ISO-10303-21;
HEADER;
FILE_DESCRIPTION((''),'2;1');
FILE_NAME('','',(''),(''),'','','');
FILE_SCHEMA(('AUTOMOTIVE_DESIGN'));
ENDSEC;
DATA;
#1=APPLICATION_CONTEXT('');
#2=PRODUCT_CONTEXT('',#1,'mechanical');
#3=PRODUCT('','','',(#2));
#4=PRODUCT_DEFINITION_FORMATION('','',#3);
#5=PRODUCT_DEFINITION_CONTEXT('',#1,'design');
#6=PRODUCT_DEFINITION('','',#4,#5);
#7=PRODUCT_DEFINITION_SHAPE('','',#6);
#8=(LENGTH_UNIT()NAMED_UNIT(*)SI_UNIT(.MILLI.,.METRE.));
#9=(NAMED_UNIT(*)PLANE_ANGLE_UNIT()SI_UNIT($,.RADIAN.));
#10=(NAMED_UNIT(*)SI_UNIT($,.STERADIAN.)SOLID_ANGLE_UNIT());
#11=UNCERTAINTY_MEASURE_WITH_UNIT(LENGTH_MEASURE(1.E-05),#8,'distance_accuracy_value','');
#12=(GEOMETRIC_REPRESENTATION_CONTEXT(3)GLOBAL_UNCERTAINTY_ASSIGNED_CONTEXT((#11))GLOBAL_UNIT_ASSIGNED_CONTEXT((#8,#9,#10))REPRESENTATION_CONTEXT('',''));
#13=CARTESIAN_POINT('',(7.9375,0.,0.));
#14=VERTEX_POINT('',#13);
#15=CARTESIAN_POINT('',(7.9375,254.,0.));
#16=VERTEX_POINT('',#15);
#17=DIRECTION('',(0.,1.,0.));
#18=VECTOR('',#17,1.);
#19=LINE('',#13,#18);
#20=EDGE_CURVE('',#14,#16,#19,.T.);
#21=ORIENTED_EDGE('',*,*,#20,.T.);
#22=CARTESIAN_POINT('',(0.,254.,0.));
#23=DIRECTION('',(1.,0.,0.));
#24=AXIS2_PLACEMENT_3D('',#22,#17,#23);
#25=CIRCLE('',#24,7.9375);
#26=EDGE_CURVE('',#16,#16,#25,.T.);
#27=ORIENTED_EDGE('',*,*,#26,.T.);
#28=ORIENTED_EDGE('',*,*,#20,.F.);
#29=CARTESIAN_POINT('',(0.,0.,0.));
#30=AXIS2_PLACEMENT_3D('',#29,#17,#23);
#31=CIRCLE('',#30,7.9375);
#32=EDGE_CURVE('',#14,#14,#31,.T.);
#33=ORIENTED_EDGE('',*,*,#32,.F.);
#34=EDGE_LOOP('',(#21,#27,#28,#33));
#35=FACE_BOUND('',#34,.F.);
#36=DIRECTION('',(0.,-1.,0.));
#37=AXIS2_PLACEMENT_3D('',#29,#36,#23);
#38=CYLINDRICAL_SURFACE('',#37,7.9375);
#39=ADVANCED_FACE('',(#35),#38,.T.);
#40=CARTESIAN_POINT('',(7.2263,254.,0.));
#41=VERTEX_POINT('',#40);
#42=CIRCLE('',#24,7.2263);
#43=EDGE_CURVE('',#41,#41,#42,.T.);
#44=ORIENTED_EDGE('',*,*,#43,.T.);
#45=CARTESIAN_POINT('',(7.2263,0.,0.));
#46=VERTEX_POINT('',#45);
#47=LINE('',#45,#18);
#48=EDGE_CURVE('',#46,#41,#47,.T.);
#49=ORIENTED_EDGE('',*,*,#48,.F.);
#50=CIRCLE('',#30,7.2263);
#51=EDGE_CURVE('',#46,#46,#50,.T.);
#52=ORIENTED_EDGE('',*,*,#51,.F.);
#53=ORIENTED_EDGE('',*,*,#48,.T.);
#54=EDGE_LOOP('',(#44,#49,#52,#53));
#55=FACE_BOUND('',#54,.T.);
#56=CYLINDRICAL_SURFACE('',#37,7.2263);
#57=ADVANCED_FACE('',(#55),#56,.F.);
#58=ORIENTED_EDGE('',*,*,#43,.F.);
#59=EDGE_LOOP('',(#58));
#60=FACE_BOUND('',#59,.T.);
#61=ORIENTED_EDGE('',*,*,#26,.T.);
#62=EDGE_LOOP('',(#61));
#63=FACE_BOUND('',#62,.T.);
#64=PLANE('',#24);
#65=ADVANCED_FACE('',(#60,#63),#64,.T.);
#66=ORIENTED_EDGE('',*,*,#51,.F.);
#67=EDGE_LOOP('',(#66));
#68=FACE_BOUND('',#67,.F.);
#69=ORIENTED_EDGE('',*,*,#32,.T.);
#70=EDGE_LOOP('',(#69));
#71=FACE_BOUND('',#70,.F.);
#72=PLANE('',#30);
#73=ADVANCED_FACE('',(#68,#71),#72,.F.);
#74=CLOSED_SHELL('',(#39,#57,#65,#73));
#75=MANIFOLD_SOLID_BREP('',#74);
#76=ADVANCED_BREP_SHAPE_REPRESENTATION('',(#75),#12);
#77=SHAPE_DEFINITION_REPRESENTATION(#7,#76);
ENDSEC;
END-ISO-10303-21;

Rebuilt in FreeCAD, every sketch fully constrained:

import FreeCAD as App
import Part
import Sketcher
Q = App.Units.Quantity

doc = App.newDocument("Part")
body = doc.addObject("PartDesign::Body", "Body")

# Sketch on XZ plane
sketch1 = doc.addObject("Sketcher::SketchObject", "Sketch")
body.addObject(sketch1)
sketch1.AttachmentSupport = (doc.XZ_Plane, [""])
sketch1.MapMode = "FlatFace"
sketch1.addGeometry([
    Part.Circle(App.Vector(0, 0, 0), App.Vector(0, 0, 1), 8),
    Part.Circle(App.Vector(0, 0, 0), App.Vector(0, 0, 1), 7),
], False)
sketch1.addConstraint([
    Sketcher.Constraint("Coincident", 0, 3, -1, 1),
    Sketcher.Constraint("Coincident", 1, 3, -1, 1),
    Sketcher.Constraint("Diameter", 0, Q("0.625 in")),
    Sketcher.Constraint("Diameter", 1, Q("0.569 in")),
])
pad1 = doc.addObject("PartDesign::Pad", "Pad")
body.addObject(pad1)
pad1.Profile = sketch1
pad1.Length = Q("10 in")
pad1.Reversed = True

doc.recompute()
